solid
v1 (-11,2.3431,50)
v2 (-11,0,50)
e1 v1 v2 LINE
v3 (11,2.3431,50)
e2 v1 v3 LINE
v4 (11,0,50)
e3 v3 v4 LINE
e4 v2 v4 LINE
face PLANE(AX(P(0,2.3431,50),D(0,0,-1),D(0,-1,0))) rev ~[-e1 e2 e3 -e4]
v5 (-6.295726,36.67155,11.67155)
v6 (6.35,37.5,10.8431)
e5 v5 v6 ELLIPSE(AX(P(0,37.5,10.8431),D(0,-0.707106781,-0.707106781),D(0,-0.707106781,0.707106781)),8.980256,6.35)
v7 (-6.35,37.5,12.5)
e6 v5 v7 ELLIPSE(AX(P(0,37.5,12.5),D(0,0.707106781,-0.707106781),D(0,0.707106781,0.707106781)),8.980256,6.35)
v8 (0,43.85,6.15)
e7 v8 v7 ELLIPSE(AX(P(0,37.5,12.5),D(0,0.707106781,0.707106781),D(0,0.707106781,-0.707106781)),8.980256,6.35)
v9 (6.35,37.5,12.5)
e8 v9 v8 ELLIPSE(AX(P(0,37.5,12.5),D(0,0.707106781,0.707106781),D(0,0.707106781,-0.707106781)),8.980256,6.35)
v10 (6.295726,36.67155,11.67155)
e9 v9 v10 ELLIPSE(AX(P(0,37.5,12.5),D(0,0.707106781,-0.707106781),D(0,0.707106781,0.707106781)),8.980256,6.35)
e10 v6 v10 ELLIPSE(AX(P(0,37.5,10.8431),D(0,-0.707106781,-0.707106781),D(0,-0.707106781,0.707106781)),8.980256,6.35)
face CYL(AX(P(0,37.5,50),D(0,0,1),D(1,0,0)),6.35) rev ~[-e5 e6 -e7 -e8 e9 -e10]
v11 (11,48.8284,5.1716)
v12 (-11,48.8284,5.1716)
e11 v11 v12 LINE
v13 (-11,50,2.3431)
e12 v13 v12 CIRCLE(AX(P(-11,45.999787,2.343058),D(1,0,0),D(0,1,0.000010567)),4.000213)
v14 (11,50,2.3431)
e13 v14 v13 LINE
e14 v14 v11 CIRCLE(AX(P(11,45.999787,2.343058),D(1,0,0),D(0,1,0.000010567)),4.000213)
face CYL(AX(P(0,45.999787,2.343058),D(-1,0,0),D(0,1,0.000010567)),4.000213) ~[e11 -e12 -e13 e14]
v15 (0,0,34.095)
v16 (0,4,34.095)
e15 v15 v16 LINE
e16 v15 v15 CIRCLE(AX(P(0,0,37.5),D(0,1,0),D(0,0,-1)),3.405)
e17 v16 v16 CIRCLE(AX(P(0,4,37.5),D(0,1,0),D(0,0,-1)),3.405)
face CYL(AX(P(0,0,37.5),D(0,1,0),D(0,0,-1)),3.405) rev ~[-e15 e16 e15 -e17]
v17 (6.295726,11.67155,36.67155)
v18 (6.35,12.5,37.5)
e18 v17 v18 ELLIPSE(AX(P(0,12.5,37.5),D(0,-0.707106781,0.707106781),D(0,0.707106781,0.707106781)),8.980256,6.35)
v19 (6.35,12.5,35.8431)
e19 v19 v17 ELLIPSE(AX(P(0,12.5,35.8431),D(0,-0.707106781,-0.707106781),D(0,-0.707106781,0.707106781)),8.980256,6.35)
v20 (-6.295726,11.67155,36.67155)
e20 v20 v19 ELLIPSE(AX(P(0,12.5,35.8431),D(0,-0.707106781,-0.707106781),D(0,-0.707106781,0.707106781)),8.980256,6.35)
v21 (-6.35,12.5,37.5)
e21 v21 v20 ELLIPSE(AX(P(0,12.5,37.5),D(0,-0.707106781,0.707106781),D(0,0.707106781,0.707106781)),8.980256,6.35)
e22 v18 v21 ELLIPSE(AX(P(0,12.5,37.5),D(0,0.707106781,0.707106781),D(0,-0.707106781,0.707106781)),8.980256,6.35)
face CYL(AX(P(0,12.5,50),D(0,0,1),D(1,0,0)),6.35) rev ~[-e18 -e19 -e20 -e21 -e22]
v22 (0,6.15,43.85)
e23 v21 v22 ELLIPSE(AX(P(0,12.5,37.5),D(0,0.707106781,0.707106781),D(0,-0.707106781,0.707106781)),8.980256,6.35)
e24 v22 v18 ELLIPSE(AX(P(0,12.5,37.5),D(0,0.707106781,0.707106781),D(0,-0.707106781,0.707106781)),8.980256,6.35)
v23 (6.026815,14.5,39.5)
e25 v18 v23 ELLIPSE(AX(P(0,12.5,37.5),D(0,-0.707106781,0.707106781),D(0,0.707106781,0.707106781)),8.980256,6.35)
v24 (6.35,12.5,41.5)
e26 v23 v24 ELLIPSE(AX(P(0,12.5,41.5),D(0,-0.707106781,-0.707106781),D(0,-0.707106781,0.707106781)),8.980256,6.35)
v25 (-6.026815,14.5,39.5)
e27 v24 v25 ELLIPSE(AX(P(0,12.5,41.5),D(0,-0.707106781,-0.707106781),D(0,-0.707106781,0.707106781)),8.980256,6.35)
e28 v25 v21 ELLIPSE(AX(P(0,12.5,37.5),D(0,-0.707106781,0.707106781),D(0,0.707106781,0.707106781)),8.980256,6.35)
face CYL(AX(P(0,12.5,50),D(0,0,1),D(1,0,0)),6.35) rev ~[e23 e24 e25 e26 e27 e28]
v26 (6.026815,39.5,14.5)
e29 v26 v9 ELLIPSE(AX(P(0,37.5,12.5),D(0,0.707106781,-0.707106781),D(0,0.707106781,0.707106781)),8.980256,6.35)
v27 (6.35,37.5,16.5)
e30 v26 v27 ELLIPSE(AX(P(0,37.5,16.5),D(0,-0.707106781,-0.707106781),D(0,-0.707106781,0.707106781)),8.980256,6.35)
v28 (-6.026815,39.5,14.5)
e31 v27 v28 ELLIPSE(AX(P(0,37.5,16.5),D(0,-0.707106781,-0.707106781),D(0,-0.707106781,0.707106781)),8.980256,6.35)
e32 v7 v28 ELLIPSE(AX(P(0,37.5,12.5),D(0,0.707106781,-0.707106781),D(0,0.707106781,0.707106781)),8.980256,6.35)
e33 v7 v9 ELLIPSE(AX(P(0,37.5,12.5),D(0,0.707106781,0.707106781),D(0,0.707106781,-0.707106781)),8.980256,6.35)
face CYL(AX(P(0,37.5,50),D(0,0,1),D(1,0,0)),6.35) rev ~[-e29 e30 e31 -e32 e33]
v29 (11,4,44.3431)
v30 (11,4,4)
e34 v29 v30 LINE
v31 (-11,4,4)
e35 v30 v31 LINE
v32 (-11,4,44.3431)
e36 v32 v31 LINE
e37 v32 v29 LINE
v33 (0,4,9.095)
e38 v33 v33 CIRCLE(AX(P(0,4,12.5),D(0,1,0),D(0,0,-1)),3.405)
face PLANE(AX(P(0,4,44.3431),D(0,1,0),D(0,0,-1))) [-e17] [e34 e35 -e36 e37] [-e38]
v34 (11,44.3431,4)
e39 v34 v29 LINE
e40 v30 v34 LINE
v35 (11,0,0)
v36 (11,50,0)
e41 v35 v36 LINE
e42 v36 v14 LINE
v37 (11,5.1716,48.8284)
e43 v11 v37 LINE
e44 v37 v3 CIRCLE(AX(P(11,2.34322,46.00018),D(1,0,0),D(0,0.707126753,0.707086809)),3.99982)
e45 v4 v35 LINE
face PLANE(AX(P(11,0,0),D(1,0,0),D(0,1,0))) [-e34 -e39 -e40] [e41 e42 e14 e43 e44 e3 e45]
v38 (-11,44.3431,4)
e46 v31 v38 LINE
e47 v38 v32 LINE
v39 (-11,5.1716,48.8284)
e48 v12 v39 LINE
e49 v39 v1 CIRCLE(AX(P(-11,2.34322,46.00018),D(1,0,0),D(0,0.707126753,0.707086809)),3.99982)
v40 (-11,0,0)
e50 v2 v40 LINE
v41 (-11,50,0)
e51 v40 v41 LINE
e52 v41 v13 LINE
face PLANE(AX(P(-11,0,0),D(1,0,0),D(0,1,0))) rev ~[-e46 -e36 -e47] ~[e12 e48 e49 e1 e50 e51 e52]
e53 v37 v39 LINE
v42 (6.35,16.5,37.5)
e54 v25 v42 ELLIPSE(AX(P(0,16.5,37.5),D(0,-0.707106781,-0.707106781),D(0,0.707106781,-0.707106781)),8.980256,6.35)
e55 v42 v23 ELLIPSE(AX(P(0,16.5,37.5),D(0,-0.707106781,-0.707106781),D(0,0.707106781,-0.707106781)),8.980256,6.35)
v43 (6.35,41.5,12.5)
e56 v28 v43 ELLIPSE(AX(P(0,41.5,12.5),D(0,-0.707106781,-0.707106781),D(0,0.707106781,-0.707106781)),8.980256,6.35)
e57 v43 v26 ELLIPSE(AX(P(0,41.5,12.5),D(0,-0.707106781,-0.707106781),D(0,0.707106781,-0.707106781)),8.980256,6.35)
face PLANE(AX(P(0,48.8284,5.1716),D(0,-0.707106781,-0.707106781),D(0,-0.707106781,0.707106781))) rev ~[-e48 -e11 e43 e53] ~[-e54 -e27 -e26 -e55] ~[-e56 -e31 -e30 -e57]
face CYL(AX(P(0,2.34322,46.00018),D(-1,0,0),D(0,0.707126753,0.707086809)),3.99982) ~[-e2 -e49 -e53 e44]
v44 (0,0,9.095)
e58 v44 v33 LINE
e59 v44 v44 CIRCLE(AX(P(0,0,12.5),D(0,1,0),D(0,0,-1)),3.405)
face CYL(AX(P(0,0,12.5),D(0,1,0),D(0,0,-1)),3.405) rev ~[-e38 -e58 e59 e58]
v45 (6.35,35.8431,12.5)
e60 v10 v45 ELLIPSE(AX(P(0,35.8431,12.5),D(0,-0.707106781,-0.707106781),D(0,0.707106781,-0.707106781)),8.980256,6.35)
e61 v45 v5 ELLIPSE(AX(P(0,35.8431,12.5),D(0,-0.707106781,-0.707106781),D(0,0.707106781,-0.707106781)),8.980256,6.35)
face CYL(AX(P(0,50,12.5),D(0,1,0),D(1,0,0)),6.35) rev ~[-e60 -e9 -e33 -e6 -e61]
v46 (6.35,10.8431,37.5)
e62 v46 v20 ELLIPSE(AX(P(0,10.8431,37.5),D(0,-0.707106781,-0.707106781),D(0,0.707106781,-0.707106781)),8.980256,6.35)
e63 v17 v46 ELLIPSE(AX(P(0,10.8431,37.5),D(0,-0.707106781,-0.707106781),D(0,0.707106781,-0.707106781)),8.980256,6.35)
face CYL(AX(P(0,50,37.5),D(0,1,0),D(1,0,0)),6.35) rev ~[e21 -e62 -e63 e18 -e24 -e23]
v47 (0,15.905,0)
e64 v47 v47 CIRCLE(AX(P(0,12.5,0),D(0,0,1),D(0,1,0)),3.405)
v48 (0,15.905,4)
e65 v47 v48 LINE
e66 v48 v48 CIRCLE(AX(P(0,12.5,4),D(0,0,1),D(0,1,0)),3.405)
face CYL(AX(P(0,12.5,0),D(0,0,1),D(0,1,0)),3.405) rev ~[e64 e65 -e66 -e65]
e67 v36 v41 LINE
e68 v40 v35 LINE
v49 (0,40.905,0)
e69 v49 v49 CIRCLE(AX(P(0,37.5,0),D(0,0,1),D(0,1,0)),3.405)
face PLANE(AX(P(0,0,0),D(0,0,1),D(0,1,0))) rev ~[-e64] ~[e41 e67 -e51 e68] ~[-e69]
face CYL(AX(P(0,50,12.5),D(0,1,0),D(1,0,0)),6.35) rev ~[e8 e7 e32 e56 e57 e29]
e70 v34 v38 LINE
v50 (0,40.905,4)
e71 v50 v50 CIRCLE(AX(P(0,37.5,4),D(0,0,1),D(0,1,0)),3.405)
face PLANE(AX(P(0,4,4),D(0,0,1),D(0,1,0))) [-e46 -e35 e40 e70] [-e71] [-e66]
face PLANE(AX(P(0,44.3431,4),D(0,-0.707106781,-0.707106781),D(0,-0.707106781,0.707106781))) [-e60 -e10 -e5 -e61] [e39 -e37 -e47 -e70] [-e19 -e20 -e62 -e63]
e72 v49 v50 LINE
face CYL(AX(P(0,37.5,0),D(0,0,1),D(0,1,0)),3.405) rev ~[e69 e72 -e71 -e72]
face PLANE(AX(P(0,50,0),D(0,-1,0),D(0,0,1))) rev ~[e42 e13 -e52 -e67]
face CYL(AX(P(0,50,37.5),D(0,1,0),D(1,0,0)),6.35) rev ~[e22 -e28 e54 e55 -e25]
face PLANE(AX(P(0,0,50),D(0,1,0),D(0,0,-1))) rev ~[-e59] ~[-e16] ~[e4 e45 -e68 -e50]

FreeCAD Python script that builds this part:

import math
import FreeCAD as App
import Part
import Sketcher

V = App.Vector
Q = App.Units.Quantity


def add_polygon(sketch, points):
    """Adds a closed chain of lines whose ends are joined by coincident constraints."""
    first, n = sketch.GeometryCount, len(points)
    for a, b in zip(points, points[1:] + points[:1]):
        sketch.addGeometry(Part.LineSegment(App.Vector(*a, 0), App.Vector(*b, 0)), False)
    for i in range(n):
        sketch.addConstraint(Sketcher.Constraint("Coincident", first + i, 2, first + (i + 1) % n, 1))

doc = App.newDocument("Part")
body = doc.addObject("PartDesign::Body", "Body")

sketch1 = body.newObject("Sketcher::SketchObject", "Sketch")
sketch1.AttachmentSupport = (doc.getObject("YZ_Plane"), [""])
sketch1.MapMode = "FlatFace"
sketch1.addGeometry(Part.ArcOfCircle(Part.Circle(V(2.3, 46, 0), V(0, 0, 1), 4), math.radians(45), math.radians(90)), False)
sketch1.addGeometry(Part.LineSegment(V(2.3, 50, 0), V(0, 50, 0)), False)
sketch1.addGeometry(Part.LineSegment(V(0, 50, 0), V(0, 0, 0)), False)
sketch1.addGeometry(Part.LineSegment(V(0, 0, 0), V(50, 0, 0)), False)
sketch1.addGeometry(Part.LineSegment(V(50, 0, 0), V(50, 2.3, 0)), False)
sketch1.addGeometry(Part.ArcOfCircle(Part.Circle(V(46, 2.3, 0), V(0, 0, 1), 4), math.radians(0), math.radians(45)), False)
sketch1.addGeometry(Part.LineSegment(V(48.8, 5.2, 0), V(5.2, 48.8, 0)), False)
add_polygon(sketch1, [(4, 4), (4, 44.3), (44.3, 4)])
sketch1.addConstraint([
    Sketcher.Constraint("Tangent", 0, 2, 1, 1),
    Sketcher.Constraint("Coincident", 1, 2, 2, 1),
    Sketcher.Constraint("Coincident", 2, 2, 3, 1),
    Sketcher.Constraint("Coincident", 3, 2, 4, 1),
    Sketcher.Constraint("Tangent", 4, 2, 5, 1),
    Sketcher.Constraint("Tangent", 5, 2, 6, 1),
    Sketcher.Constraint("Tangent", 6, 2, 0, 1),
    Sketcher.Constraint("Horizontal", 1),
    Sketcher.Constraint("Vertical", 2),
    Sketcher.Constraint("Horizontal", 3),
    Sketcher.Constraint("Vertical", 4),
    Sketcher.Constraint("Vertical", 7),
    Sketcher.Constraint("Horizontal", 9),
    Sketcher.Constraint("Coincident", 2, 2, -1, 1),
    Sketcher.Constraint("Equal", 0, 5),
    Sketcher.Constraint("Parallel", 6, 8),
    Sketcher.Constraint("Equal", 3, 2),
    Sketcher.Constraint("Equal", 1, 4),
    Sketcher.Constraint("Radius", 0, Q("4 mm")),
    Sketcher.Constraint("DistanceX", 3, 1, 3, 2, Q("50 mm")),
    Sketcher.Constraint("DistanceX", -1, 1, 7, 2, Q("4 mm")),
    Sketcher.Constraint("DistanceY", -1, 1, 8, 2, Q("4 mm")),
    Sketcher.Constraint("Distance", 6, Q("61.74 mm")),
    Sketcher.Constraint("DistanceX", 9, 2, 9, 1, Q("40.343 mm")),
])
pad1 = body.newObject("PartDesign::Pad", "Pad")
pad1.Profile = sketch1
pad1.Length = 22
pad1.Midplane = True

sketch2 = body.newObject("Sketcher::SketchObject", "Sketch001")
sketch2.AttachmentSupport = (doc.getObject("XZ_Plane"), [""])
sketch2.MapMode = "FlatFace"
sketch2.addGeometry(Part.Circle(V(0, 12.5, 0), V(0, 0, 1), 3.4), False)
sketch2.addConstraint([
    Sketcher.Constraint("PointOnObject", 0, 3, -2),
    Sketcher.Constraint("Diameter", 0, Q("6.81 mm")),
    Sketcher.Constraint("DistanceY", -1, 1, 0, 3, Q("12.5 mm")),
])
doc.recompute()
hole = body.newObject("PartDesign::Hole", "Hole")
hole.Profile = sketch2
hole.ThreadType = "None"
hole.Diameter = 6.81
hole.DepthType = "Dimension"
hole.Depth = 4
hole.DrillPoint = "Flat"

sketch3 = body.newObject("Sketcher::SketchObject", "Sketch002")
sketch3.AttachmentSupport = (doc.getObject("XY_Plane"), [""])
sketch3.MapMode = "FlatFace"
sketch3.addGeometry(Part.Circle(V(0, 12.5, 0), V(0, 0, 1), 3.4), False)
sketch3.addConstraint([
    Sketcher.Constraint("PointOnObject", 0, 3, -2),
    Sketcher.Constraint("Diameter", 0, Q("6.81 mm")),
    Sketcher.Constraint("DistanceY", -1, 1, 0, 3, Q("12.5 mm")),
])
doc.recompute()
hole2 = body.newObject("PartDesign::Hole", "Hole001")
hole2.Profile = sketch3
hole2.ThreadType = "None"
hole2.Diameter = 6.81
hole2.DepthType = "Dimension"
hole2.Depth = 4
hole2.DrillPoint = "Flat"
hole2.Reversed = True

sketch4 = body.newObject("Sketcher::SketchObject", "Sketch003")
sketch4.AttachmentSupport = (doc.getObject("XY_Plane"), [""])
sketch4.MapMode = "FlatFace"
sketch4.AttachmentOffset = App.Placement(V(0, 0, 50), App.Rotation())
sketch4.addGeometry(Part.Circle(V(0, 12, 0), V(0, 0, 1), 6), False)
sketch4.addConstraint([
    Sketcher.Constraint("PointOnObject", 0, 3, -2),
    Sketcher.Constraint("Diameter", 0, Q("12.7 mm")),
    Sketcher.Constraint("DistanceY", -1, 1, 0, 3, Q("12.5 mm")),
])
pocket1 = body.newObject("PartDesign::Pocket", "Pocket")
pocket1.Profile = sketch4
pocket1.Length = 46

sketch5 = body.newObject("Sketcher::SketchObject", "Sketch004")
sketch5.AttachmentSupport = (doc.getObject("XZ_Plane"), [""])
sketch5.MapMode = "FlatFace"
sketch5.AttachmentOffset = App.Placement(V(0, 0, -50), App.Rotation())
sketch5.addGeometry(Part.Circle(V(0, 12, 0), V(0, 0, 1), 6), False)
sketch5.addConstraint([
    Sketcher.Constraint("PointOnObject", 0, 3, -2),
    Sketcher.Constraint("Diameter", 0, Q("12.7 mm")),
    Sketcher.Constraint("DistanceY", -1, 1, 0, 3, Q("12.5 mm")),
])
pocket2 = body.newObject("PartDesign::Pocket", "Pocket001")
pocket2.Profile = sketch5
pocket2.Length = 46
pocket2.Reversed = True

sketch6 = body.newObject("Sketcher::SketchObject", "Sketch005")
sketch6.AttachmentSupport = (doc.getObject("XY_Plane"), [""])
sketch6.MapMode = "FlatFace"
sketch6.addGeometry(Part.Circle(V(0, 37.5, 0), V(0, 0, 1), 3.4), False)
sketch6.addConstraint([
    Sketcher.Constraint("PointOnObject", 0, 3, -2),
    Sketcher.Constraint("Diameter", 0, Q("6.81 mm")),
    Sketcher.Constraint("DistanceY", -1, 1, 0, 3, Q("37.5 mm")),
])
doc.recompute()
hole3 = body.newObject("PartDesign::Hole", "Hole002")
hole3.Profile = sketch6
hole3.ThreadType = "None"
hole3.Diameter = 6.81
hole3.DepthType = "Dimension"
hole3.Depth = 4
hole3.DrillPoint = "Flat"
hole3.Reversed = True

sketch7 = body.newObject("Sketcher::SketchObject", "Sketch006")
sketch7.AttachmentSupport = (doc.getObject("XZ_Plane"), [""])
sketch7.MapMode = "FlatFace"
sketch7.addGeometry(Part.Circle(V(0, 37.5, 0), V(0, 0, 1), 3.4), False)
sketch7.addConstraint([
    Sketcher.Constraint("PointOnObject", 0, 3, -2),
    Sketcher.Constraint("Diameter", 0, Q("6.81 mm")),
    Sketcher.Constraint("DistanceY", -1, 1, 0, 3, Q("37.5 mm")),
])
doc.recompute()
hole4 = body.newObject("PartDesign::Hole", "Hole003")
hole4.Profile = sketch7
hole4.ThreadType = "None"
hole4.Diameter = 6.81
hole4.DepthType = "Dimension"
hole4.Depth = 4
hole4.DrillPoint = "Flat"

sketch8 = body.newObject("Sketcher::SketchObject", "Sketch007")
sketch8.AttachmentSupport = (doc.getObject("XY_Plane"), [""])
sketch8.MapMode = "FlatFace"
sketch8.AttachmentOffset = App.Placement(V(0, 0, 50), App.Rotation())
sketch8.addGeometry(Part.Circle(V(0, 38, 0), V(0, 0, 1), 6), False)
sketch8.addConstraint([
    Sketcher.Constraint("PointOnObject", 0, 3, -2),
    Sketcher.Constraint("Diameter", 0, Q("12.7 mm")),
    Sketcher.Constraint("DistanceY", -1, 1, 0, 3, Q("37.5 mm")),
])
pocket3 = body.newObject("PartDesign::Pocket", "Pocket002")
pocket3.Profile = sketch8
pocket3.Length = 46

sketch9 = body.newObject("Sketcher::SketchObject", "Sketch008")
sketch9.AttachmentSupport = (doc.getObject("XZ_Plane"), [""])
sketch9.MapMode = "FlatFace"
sketch9.AttachmentOffset = App.Placement(V(0, 0, -50), App.Rotation())
sketch9.addGeometry(Part.Circle(V(0, 38, 0), V(0, 0, 1), 6), False)
sketch9.addConstraint([
    Sketcher.Constraint("PointOnObject", 0, 3, -2),
    Sketcher.Constraint("Diameter", 0, Q("12.7 mm")),
    Sketcher.Constraint("DistanceY", -1, 1, 0, 3, Q("37.5 mm")),
])
pocket4 = body.newObject("PartDesign::Pocket", "Pocket003")
pocket4.Profile = sketch9
pocket4.Length = 46
pocket4.Reversed = True

doc.recompute()
